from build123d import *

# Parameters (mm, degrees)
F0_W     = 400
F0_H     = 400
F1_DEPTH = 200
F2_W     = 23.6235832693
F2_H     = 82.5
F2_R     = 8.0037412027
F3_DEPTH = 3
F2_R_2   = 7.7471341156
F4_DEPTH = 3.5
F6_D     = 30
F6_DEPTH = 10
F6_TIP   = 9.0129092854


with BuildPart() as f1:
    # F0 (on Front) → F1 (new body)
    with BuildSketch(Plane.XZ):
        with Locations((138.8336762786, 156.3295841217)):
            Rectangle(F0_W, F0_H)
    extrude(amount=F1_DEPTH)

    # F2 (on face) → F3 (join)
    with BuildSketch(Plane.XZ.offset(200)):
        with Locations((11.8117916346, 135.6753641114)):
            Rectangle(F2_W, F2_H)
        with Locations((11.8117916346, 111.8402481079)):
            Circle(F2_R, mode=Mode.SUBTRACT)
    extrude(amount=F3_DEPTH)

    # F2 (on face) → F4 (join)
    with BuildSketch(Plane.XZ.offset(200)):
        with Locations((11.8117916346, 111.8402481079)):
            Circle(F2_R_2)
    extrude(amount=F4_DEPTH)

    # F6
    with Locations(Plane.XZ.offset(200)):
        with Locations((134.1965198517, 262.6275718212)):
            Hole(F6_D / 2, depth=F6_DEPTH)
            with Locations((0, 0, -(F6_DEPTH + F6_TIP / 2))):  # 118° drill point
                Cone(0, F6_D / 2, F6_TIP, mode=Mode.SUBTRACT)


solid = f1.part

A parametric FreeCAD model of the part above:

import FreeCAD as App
import Part
import Sketcher

V = App.Vector

doc = App.newDocument("Part")
body = doc.addObject("PartDesign::Body", "Body")

sketch1 = doc.addObject("Sketcher::SketchObject", "Sketch")
body.addObject(sketch1)
sketch1.AttachmentSupport = (doc.XZ_Plane, [""])
sketch1.MapMode = "FlatFace"
sketch1.addGeometry([
    Part.LineSegment(V(-61.166324, 356.329584, 0), V(-61.166324, -43.670416, 0)),
    Part.LineSegment(V(-61.166324, -43.670416, 0), V(338.833676, -43.670416, 0)),
    Part.LineSegment(V(338.833676, -43.670416, 0), V(338.833676, 356.329584, 0)),
    Part.LineSegment(V(338.833676, 356.329584, 0), V(-61.166324, 356.329584, 0)),
], False)
sketch1.addConstraint([
    Sketcher.Constraint("Coincident", 0, 2, 1, 1),
    Sketcher.Constraint("Coincident", 1, 2, 2, 1),
    Sketcher.Constraint("Coincident", 2, 2, 3, 1),
    Sketcher.Constraint("Coincident", 3, 2, 0, 1),
    Sketcher.Constraint("Vertical", 0),
    Sketcher.Constraint("Horizontal", 1),
    Sketcher.Constraint("Vertical", 2),
    Sketcher.Constraint("Horizontal", 3),
    Sketcher.Constraint("Equal", 3, 0),
    Sketcher.Constraint("DistanceX", 1, 1, 1, 2, 400.0),
    Sketcher.Constraint("DistanceX", 0, 2, -1, 1, 61.166324),
    Sketcher.Constraint("DistanceY", 0, 2, -1, 1, 43.670416),
])
pad1 = doc.addObject("PartDesign::Pad", "Pad")
body.addObject(pad1)
pad1.Profile = sketch1
pad1.Length = 200

sketch2 = doc.addObject("Sketcher::SketchObject", "Sketch001")
body.addObject(sketch2)
sketch2.AttachmentSupport = (doc.XZ_Plane, [""])
sketch2.MapMode = "FlatFace"
sketch2.AttachmentOffset = App.Placement(V(0, 0, 200), App.Rotation())
sketch2.addGeometry([
    Part.LineSegment(V(0, 176.925364, 0), V(0, 94.425364, 0)),
    Part.LineSegment(V(0, 94.425364, 0), V(23.623583, 94.425364, 0)),
    Part.LineSegment(V(23.623583, 94.425364, 0), V(23.623583, 176.925364, 0)),
    Part.LineSegment(V(23.623583, 176.925364, 0), V(0, 176.925364, 0)),
    Part.Circle(V(11.811792, 111.840248, 0), V(0, 0, 1), 8.003741),
], False)
sketch2.addConstraint([
    Sketcher.Constraint("Coincident", 0, 2, 1, 1),
    Sketcher.Constraint("Coincident", 1, 2, 2, 1),
    Sketcher.Constraint("Coincident", 2, 2, 3, 1),
    Sketcher.Constraint("Coincident", 3, 2, 0, 1),
    Sketcher.Constraint("Vertical", 0),
    Sketcher.Constraint("Horizontal", 1),
    Sketcher.Constraint("Vertical", 2),
    Sketcher.Constraint("Horizontal", 3),
    Sketcher.Constraint("PointOnObject", 0, 2, -2),
    Sketcher.Constraint("DistanceY", 0, 2, 0, 1, 82.5),
    Sketcher.Constraint("Diameter", 4, 16.007482),
    Sketcher.Constraint("DistanceX", 1, 1, 1, 2, 23.623583),
    Sketcher.Constraint("DistanceX", -1, 1, 4, 3, 11.811792),
    Sketcher.Constraint("DistanceY", -1, 1, 4, 3, 111.840248),
    Sketcher.Constraint("DistanceY", -1, 1, 0, 2, 94.425364),
])
pad2 = doc.addObject("PartDesign::Pad", "Pad001")
body.addObject(pad2)
pad2.Profile = sketch2
pad2.Length = 3

sketch3 = doc.addObject("Sketcher::SketchObject", "Sketch002")
body.addObject(sketch3)
sketch3.AttachmentSupport = (doc.XZ_Plane, [""])
sketch3.MapMode = "FlatFace"
sketch3.AttachmentOffset = App.Placement(V(0, 0, 200), App.Rotation())
sketch3.addGeometry(Part.Circle(V(11.811792, 111.840248, 0), V(0, 0, 1), 7.747134), False)
sketch3.addConstraint([
    Sketcher.Constraint("Diameter", 0, 15.494268),
    Sketcher.Constraint("DistanceX", -1, 1, 0, 3, 11.811792),
    Sketcher.Constraint("DistanceY", -1, 1, 0, 3, 111.840248),
])
pad3 = doc.addObject("PartDesign::Pad", "Pad002")
body.addObject(pad3)
pad3.Profile = sketch3
pad3.Length = 3.5

sketch4 = doc.addObject("Sketcher::SketchObject", "Sketch003")
body.addObject(sketch4)
sketch4.AttachmentSupport = (doc.XZ_Plane, [""])
sketch4.MapMode = "FlatFace"
sketch4.AttachmentOffset = App.Placement(V(0, 0, 200), App.Rotation())
sketch4.addGeometry(Part.Circle(V(134.19652, 262.627572, 0), V(0, 0, 1), 15), False)
sketch4.addConstraint([
    Sketcher.Constraint("Diameter", 0, 30.0),
    Sketcher.Constraint("DistanceX", -1, 1, 0, 3, 134.19652),
    Sketcher.Constraint("DistanceY", -1, 1, 0, 3, 262.627572),
])
doc.recompute()
hole = doc.addObject("PartDesign::Hole", "Hole")
body.addObject(hole)
hole.Profile = sketch4
hole.ThreadType = "None"
hole.Diameter = 30
hole.DepthType = "Dimension"
hole.Depth = 10
hole.DrillPoint = "Angled"
hole.DrillPointAngle = 118

doc.recompute()
